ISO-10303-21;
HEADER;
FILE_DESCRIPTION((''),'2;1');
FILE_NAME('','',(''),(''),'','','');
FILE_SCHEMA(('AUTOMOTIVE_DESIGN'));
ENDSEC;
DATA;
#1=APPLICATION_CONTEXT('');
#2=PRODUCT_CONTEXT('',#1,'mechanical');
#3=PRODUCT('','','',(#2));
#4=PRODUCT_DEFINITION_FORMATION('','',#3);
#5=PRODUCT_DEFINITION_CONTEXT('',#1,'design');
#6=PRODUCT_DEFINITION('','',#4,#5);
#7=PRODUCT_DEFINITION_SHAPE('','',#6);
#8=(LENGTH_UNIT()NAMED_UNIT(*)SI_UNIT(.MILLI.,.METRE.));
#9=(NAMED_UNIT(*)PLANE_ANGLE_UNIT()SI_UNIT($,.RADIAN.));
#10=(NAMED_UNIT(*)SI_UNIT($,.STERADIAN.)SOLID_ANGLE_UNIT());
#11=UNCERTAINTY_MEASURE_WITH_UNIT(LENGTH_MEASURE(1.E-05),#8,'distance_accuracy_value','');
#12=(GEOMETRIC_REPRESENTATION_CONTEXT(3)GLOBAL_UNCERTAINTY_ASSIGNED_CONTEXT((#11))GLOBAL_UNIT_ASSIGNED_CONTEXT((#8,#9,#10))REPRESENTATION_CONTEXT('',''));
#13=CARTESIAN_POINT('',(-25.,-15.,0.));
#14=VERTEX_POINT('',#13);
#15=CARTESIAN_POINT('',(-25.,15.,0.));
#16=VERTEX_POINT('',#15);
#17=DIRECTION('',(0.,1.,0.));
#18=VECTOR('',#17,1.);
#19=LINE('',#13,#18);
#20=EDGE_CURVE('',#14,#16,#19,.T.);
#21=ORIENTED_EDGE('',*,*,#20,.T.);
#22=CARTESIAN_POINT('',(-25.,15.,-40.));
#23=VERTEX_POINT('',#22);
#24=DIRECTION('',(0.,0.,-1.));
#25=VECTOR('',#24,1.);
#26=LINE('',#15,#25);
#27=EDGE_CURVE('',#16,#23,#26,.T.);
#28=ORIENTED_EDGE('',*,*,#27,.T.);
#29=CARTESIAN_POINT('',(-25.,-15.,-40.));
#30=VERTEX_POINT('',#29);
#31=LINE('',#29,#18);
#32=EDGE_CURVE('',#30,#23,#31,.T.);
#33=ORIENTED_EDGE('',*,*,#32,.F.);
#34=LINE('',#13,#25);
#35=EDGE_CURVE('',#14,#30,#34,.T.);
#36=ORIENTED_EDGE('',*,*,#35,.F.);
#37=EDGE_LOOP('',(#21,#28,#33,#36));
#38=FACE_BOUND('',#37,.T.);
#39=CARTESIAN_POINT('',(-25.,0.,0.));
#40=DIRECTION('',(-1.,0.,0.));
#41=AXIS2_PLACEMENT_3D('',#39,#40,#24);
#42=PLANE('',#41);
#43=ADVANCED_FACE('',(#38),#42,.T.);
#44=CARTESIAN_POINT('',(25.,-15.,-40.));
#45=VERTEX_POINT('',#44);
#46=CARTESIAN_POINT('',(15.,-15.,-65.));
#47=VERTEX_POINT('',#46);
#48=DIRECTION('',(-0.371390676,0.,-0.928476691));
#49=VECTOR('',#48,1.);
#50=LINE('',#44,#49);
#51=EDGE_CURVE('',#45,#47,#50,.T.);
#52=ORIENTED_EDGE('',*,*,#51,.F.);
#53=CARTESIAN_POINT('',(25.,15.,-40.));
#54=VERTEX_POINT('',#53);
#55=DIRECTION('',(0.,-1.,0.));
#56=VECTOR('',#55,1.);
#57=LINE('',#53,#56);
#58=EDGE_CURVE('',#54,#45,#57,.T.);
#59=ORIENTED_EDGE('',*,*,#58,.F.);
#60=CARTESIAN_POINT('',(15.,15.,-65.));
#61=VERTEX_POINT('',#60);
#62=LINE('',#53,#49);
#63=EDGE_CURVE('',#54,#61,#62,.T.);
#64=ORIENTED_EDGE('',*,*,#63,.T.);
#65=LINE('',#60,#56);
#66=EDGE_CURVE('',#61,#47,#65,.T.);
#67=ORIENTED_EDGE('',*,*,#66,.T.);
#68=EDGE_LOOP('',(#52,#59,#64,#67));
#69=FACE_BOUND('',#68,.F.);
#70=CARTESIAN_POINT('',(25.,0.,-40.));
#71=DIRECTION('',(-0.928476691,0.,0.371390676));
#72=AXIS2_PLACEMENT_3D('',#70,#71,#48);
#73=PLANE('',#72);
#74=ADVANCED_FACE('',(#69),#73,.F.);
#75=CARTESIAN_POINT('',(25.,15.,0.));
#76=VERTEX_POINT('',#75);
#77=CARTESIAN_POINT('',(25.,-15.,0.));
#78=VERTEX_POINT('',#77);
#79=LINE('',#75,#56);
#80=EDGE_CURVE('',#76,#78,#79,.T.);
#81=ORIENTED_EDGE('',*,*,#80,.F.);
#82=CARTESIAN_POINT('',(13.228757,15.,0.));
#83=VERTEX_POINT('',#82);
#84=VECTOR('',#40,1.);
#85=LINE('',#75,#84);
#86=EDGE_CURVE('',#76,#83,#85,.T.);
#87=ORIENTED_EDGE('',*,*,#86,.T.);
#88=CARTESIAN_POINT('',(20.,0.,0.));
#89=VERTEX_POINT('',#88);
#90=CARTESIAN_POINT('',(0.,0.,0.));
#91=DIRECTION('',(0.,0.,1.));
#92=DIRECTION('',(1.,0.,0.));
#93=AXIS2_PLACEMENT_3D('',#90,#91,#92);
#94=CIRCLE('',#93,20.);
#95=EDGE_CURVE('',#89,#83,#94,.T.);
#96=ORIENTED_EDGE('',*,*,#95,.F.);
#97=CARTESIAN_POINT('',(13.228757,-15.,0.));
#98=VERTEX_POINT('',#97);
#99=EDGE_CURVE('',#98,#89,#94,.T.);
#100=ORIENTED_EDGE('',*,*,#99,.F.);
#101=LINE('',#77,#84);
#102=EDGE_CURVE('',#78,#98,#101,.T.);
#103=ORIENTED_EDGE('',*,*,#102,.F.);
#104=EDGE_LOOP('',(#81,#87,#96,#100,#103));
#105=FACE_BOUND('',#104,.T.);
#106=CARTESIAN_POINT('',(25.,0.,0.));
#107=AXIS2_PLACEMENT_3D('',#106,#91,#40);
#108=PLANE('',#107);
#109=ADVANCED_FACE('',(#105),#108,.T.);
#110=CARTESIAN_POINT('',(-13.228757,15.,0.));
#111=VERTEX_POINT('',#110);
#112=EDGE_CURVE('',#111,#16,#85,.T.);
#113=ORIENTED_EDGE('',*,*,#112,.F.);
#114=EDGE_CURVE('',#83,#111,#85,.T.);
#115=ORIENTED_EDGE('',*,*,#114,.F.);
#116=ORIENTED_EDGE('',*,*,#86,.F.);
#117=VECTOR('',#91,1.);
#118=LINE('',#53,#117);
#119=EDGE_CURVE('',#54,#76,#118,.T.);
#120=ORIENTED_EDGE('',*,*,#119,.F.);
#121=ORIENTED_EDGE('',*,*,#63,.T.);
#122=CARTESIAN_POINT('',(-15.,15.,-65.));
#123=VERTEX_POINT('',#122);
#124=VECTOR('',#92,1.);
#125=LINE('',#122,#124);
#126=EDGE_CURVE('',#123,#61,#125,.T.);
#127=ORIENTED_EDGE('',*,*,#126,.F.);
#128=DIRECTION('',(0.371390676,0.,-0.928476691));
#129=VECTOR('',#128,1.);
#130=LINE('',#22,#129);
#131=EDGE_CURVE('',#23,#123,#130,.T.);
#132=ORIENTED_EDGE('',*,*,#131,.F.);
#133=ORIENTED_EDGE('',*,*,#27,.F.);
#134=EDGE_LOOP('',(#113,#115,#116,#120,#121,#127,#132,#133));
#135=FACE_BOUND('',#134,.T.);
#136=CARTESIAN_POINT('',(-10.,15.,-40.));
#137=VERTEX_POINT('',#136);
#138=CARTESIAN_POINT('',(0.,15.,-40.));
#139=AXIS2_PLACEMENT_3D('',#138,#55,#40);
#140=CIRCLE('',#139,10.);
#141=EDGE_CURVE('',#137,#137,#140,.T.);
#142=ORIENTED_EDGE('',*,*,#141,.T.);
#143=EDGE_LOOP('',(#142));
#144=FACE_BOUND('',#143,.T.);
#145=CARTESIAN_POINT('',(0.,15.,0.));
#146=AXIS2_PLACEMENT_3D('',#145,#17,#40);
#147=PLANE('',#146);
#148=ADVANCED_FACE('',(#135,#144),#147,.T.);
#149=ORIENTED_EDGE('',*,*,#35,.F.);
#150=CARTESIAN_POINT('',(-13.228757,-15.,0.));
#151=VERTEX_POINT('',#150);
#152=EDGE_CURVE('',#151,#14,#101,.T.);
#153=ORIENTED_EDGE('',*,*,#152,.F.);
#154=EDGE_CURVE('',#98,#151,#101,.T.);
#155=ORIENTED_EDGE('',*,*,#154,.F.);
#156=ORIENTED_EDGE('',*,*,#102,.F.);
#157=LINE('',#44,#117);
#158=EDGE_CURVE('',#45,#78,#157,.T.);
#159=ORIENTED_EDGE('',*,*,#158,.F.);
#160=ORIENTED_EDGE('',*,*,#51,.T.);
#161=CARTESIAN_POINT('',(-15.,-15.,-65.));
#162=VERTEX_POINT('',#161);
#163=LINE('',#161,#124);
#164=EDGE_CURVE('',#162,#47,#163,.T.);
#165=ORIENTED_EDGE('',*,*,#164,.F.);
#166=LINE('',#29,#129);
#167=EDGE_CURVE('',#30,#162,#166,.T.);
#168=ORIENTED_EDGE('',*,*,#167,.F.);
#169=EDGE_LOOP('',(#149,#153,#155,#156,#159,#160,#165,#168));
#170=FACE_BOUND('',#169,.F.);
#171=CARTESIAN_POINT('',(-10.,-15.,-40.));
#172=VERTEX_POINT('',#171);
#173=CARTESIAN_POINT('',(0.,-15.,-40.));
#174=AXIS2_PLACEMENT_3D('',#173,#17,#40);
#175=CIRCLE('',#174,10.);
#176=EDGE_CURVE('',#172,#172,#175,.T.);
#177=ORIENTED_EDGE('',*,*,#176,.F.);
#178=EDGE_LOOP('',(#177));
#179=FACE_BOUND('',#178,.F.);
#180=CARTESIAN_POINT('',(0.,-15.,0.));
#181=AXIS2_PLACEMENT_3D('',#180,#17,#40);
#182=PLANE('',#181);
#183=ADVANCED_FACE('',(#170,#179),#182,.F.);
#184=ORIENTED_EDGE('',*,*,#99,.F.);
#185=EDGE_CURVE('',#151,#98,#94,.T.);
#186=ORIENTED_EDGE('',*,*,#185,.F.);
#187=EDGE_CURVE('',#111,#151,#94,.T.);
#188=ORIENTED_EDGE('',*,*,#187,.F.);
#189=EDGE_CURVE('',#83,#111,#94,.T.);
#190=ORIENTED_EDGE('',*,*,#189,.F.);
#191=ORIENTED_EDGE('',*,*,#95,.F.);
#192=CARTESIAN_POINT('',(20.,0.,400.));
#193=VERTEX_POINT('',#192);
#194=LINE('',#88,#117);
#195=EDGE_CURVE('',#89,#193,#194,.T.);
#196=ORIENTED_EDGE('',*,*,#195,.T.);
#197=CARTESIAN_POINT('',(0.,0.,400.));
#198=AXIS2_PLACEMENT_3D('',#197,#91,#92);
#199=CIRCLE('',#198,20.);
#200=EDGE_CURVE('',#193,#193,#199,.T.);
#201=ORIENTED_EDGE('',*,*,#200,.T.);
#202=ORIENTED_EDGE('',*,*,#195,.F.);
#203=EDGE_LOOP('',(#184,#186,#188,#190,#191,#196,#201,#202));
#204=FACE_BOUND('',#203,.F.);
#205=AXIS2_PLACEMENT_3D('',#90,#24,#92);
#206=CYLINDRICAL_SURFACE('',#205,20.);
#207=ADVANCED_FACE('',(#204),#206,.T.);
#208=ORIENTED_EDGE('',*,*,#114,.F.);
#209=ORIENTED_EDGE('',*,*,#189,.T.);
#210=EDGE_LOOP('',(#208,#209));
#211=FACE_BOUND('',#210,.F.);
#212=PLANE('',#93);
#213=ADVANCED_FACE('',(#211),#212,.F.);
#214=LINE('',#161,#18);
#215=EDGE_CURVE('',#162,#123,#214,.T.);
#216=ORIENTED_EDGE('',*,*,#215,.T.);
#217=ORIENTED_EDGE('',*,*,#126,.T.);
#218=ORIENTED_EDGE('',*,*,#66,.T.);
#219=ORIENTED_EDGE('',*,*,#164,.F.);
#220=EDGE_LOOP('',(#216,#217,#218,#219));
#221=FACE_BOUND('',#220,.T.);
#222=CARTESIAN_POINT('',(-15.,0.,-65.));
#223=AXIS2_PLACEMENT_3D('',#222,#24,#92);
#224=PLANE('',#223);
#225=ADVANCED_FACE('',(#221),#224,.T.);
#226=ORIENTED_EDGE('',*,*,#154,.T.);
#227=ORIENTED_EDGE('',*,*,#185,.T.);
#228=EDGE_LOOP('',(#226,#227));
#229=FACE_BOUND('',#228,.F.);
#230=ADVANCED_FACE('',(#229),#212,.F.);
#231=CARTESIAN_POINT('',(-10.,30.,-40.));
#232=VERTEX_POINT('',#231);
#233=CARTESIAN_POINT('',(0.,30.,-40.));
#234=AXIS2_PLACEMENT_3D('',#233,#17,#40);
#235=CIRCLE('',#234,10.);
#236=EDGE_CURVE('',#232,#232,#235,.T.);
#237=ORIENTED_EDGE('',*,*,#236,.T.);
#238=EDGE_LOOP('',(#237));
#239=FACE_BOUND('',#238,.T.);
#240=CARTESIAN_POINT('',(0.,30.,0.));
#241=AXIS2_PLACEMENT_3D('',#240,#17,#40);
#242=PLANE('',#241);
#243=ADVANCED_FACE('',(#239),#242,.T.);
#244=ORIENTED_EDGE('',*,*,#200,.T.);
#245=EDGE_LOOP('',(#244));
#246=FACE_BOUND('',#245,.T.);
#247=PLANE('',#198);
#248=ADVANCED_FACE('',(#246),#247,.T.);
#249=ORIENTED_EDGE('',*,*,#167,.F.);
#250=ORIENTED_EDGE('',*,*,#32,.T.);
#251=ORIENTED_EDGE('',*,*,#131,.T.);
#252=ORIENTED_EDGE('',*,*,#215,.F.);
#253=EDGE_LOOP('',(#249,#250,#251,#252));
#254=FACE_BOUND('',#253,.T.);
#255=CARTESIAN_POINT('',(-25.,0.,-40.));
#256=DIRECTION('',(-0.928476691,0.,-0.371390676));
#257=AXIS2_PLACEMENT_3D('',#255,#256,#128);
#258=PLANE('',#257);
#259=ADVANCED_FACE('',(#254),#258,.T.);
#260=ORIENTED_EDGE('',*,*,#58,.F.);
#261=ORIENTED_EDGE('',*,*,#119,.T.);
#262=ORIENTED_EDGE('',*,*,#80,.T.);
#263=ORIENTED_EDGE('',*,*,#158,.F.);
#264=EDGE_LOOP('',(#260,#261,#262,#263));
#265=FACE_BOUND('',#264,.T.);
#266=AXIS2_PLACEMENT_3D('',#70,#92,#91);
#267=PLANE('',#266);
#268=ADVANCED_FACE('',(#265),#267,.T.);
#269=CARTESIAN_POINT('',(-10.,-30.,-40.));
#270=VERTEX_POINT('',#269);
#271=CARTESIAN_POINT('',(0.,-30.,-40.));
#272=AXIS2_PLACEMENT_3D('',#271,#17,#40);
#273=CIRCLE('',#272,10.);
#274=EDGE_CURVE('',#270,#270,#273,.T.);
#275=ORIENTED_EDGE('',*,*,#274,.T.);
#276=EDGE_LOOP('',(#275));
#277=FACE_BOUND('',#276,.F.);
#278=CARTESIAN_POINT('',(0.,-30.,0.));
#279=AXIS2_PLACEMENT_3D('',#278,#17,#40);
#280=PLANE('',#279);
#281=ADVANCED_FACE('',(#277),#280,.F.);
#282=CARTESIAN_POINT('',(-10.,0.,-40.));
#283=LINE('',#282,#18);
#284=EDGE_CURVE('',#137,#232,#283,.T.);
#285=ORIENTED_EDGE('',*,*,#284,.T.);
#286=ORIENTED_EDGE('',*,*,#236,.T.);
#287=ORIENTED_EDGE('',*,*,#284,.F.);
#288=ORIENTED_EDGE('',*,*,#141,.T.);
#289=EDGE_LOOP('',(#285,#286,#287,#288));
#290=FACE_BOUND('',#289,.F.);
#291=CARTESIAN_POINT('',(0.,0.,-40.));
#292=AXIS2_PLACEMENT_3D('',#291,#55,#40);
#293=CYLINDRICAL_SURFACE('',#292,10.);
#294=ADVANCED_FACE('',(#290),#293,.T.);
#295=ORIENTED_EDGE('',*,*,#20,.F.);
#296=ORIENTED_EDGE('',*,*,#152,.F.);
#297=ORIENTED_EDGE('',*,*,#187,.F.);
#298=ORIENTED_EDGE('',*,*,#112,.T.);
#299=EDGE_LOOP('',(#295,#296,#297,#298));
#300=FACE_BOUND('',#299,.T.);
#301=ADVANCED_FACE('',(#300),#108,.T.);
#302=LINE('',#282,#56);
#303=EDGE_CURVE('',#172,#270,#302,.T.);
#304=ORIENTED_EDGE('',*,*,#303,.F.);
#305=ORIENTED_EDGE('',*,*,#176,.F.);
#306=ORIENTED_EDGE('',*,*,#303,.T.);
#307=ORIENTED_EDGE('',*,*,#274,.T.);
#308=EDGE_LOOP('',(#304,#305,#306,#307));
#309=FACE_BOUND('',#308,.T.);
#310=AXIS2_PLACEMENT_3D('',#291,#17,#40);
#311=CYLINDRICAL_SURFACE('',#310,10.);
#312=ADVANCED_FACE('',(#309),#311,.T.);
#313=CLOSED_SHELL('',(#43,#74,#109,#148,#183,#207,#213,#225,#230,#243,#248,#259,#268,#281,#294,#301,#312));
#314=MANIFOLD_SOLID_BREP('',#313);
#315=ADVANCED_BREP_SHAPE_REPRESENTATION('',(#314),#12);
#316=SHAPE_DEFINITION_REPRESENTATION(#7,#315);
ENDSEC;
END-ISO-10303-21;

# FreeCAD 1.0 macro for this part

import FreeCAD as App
import Part
import Sketcher
from FreeCAD import Vector

doc = App.newDocument("Part")
body = doc.addObject("PartDesign::Body", "Body")

sketch1 = body.newObject("Sketcher::SketchObject", "Sketch")
sketch1.AttachmentSupport = (doc.getObject("XY_Plane"), [""])
sketch1.MapMode = "FlatFace"
sketch1.addGeometry(Part.Circle(Vector(0, 0, 0), Vector(0, 0, 1), 20), False)
sketch1.addConstraint([
    Sketcher.Constraint("Coincident", 0, 3, -1, 1),
    Sketcher.Constraint("Diameter", 0, 40.0),
])
pad1 = body.newObject("PartDesign::Pad", "Pad")
pad1.Profile = sketch1
pad1.Length = 400

sketch2 = body.newObject("Sketcher::SketchObject", "Sketch001")
sketch2.AttachmentSupport = (doc.getObject("XZ_Plane"), [""])
sketch2.MapMode = "FlatFace"
sketch2.addGeometry([
    Part.LineSegment(Vector(15, -65, 0), Vector(-15, -65, 0)),
    Part.LineSegment(Vector(-15, -65, 0), Vector(-25, -40, 0)),
    Part.LineSegment(Vector(-25, -40, 0), Vector(-25, 0, 0)),
    Part.LineSegment(Vector(-25, 0, 0), Vector(25, 0, 0)),
    Part.LineSegment(Vector(25, 0, 0), Vector(25, -40, 0)),
    Part.LineSegment(Vector(25, -40, 0), Vector(15, -65, 0)),
], False)
sketch2.addConstraint([
    Sketcher.Constraint("Coincident", 0, 2, 1, 1),
    Sketcher.Constraint("Coincident", 1, 2, 2, 1),
    Sketcher.Constraint("Coincident", 2, 2, 3, 1),
    Sketcher.Constraint("Coincident", 3, 2, 4, 1),
    Sketcher.Constraint("Coincident", 4, 2, 5, 1),
    Sketcher.Constraint("Coincident", 5, 2, 0, 1),
    Sketcher.Constraint("Horizontal", 0),
    Sketcher.Constraint("Vertical", 2),
    Sketcher.Constraint("Horizontal", 3),
    Sketcher.Constraint("Vertical", 4),
    Sketcher.Constraint("Symmetric", 2, 2, 3, 2, -1, 1),
    Sketcher.Constraint("Horizontal", 1, 2, 4, 2),
    Sketcher.Constraint("Equal", 1, 5),
    Sketcher.Constraint("DistanceX", 3, 1, 3, 2, 50.0),
    Sketcher.Constraint("DistanceY", 0, 2, -1, 1, 65.0),
    Sketcher.Constraint("DistanceX", 1, 2, 0, 2, 10.0),
    Sketcher.Constraint("DistanceY", 0, 2, 1, 2, 25.0),
])
pad2 = body.newObject("PartDesign::Pad", "Pad001")
pad2.Profile = sketch2
pad2.Length = 30
pad2.Midplane = True

sketch3 = body.newObject("Sketcher::SketchObject", "Sketch002")
sketch3.AttachmentSupport = (doc.getObject("XZ_Plane"), [""])
sketch3.MapMode = "FlatFace"
sketch3.addGeometry(Part.Circle(Vector(0, -40, 0), Vector(0, 0, 1), 10), False)
sketch3.addConstraint([
    Sketcher.Constraint("PointOnObject", 0, 3, -2),
    Sketcher.Constraint("Diameter", 0, 20.0),
    Sketcher.Constraint("DistanceY", 0, 3, -1, 1, 40.0),
])
pad3 = body.newObject("PartDesign::Pad", "Pad002")
pad3.Profile = sketch3
pad3.Length = 60
pad3.Midplane = True

doc.recompute()
